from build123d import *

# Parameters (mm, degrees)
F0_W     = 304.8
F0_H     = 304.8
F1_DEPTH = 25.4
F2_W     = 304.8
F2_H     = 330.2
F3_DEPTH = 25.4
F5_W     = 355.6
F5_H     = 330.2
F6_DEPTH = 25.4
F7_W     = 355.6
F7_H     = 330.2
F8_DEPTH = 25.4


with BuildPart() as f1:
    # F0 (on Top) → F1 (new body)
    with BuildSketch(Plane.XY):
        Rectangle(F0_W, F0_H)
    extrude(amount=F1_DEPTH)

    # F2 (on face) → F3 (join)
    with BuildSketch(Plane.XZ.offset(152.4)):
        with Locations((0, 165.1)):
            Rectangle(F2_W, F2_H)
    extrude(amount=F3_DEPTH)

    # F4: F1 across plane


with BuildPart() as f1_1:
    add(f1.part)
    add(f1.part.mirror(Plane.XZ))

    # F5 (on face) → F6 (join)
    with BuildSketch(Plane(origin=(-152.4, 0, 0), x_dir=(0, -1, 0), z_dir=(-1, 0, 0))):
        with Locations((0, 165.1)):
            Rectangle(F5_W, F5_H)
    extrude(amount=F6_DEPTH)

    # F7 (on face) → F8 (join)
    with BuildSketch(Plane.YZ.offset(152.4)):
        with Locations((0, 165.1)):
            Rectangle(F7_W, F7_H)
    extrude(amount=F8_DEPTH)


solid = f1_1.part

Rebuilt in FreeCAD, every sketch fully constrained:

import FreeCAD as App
import Part
import Sketcher

V = App.Vector
Q = App.Units.Quantity

doc = App.newDocument("Part")
params = doc.addObject("Spreadsheet::Sheet", "Params")
for row, (alias, value) in enumerate([
    ("sketch1_width", "12 in"),
    ("pad1_length", "1 in"),
    ("sketch2_width", "12 in"),
    ("sketch2_height", "13 in"),
    ("pad2_length", "1 in"),
    ("sketch3_width", "14 in"),
    ("sketch3_height", "13 in"),
    ("pad3_length", "1 in"),
    ("sketch4_width", "14 in"),
    ("sketch4_height", "13 in"),
    ("pad4_length", "1 in"),
], start=1):
    params.set(f"A{row}", alias)
    params.set(f"B{row}", "=" + value)
    params.setAlias(f"B{row}", alias)

body = doc.addObject("PartDesign::Body", "Body")

# Sketch on XY plane
sketch1 = body.newObject("Sketcher::SketchObject", "Sketch")
sketch1.AttachmentSupport = (doc.getObject("XY_Plane"), [""])
sketch1.MapMode = "FlatFace"
sketch1.addGeometry([
    Part.LineSegment(V(-152.4, 152.4, 0), V(-152.4, -152.4, 0)),
    Part.LineSegment(V(-152.4, -152.4, 0), V(152.4, -152.4, 0)),
    Part.LineSegment(V(152.4, -152.4, 0), V(152.4, 152.4, 0)),
    Part.LineSegment(V(152.4, 152.4, 0), V(-152.4, 152.4, 0)),
], False)
sketch1.addConstraint([
    Sketcher.Constraint("Coincident", 0, 2, 1, 1),
    Sketcher.Constraint("Coincident", 1, 2, 2, 1),
    Sketcher.Constraint("Coincident", 2, 2, 3, 1),
    Sketcher.Constraint("Coincident", 3, 2, 0, 1),
    Sketcher.Constraint("Vertical", 0),
    Sketcher.Constraint("Horizontal", 1),
    Sketcher.Constraint("Vertical", 2),
    Sketcher.Constraint("Horizontal", 3),
    Sketcher.Constraint("Symmetric", 0, 2, 2, 2, -1, 1),
    Sketcher.Constraint("Equal", 3, 0),
    Sketcher.Constraint("DistanceX", 1, 1, 1, 2, Q("12 in")),
])
sketch1.setExpression("Constraints[10]", "Params.sketch1_width")
pad1 = body.newObject("PartDesign::Pad", "Pad")
pad1.Profile = sketch1
pad1.setExpression("Length", "Params.pad1_length")

# Sketch on XZ plane
sketch2 = body.newObject("Sketcher::SketchObject", "Sketch001")
sketch2.AttachmentSupport = (doc.getObject("XZ_Plane"), [""])
sketch2.MapMode = "FlatFace"
sketch2.AttachmentOffset = App.Placement(V(0, 0, 6 * 25.4), App.Rotation())
sketch2.addGeometry([
    Part.LineSegment(V(-152.4, 330.2, 0), V(-152.4, 0, 0)),
    Part.LineSegment(V(-152.4, 0, 0), V(152.4, 0, 0)),
    Part.LineSegment(V(152.4, 0, 0), V(152.4, 330.2, 0)),
    Part.LineSegment(V(152.4, 330.2, 0), V(-152.4, 330.2, 0)),
], False)
sketch2.addConstraint([
    Sketcher.Constraint("Coincident", 0, 2, 1, 1),
    Sketcher.Constraint("Coincident", 1, 2, 2, 1),
    Sketcher.Constraint("Coincident", 2, 2, 3, 1),
    Sketcher.Constraint("Coincident", 3, 2, 0, 1),
    Sketcher.Constraint("Vertical", 0),
    Sketcher.Constraint("Horizontal", 1),
    Sketcher.Constraint("Vertical", 2),
    Sketcher.Constraint("Horizontal", 3),
    Sketcher.Constraint("Symmetric", 0, 2, 1, 2, -1, 1),
    Sketcher.Constraint("DistanceX", 1, 1, 1, 2, Q("12 in")),
    Sketcher.Constraint("DistanceY", 0, 2, 0, 1, Q("13 in")),
])
sketch2.setExpression("Constraints[9]", "Params.sketch2_width")
sketch2.setExpression("Constraints[10]", "Params.sketch2_height")
pad2 = body.newObject("PartDesign::Pad", "Pad001")
pad2.Profile = sketch2
pad2.setExpression("Length", "Params.pad2_length")
body2 = doc.addObject("PartDesign::Body", "Body001")
doc.recompute()

body2.BaseFeature = body
doc.recompute()

mirroring = doc.addObject("Part::Mirroring", "Mirroring")
mirroring.Source = body
mirroring.Base = V(0, 0, 0)
mirroring.Normal = V(0, -1, 0)
body3 = doc.addObject("PartDesign::Body", "Body002")
body3.BaseFeature = mirroring
boolean = body2.newObject("PartDesign::Boolean", "Boolean")
boolean.Type = "Fuse"
boolean.addObjects([body3])
doc.recompute()

# Sketch on YZ plane
sketch3 = body2.newObject("Sketcher::SketchObject", "Sketch002")
sketch3.AttachmentSupport = (doc.getObject("YZ_Plane001"), [""])
sketch3.MapMode = "FlatFace"
sketch3.AttachmentOffset = App.Placement(V(0, 0, -6 * 25.4), App.Rotation())
sketch3.addGeometry([
    Part.LineSegment(V(177.8, 330.2, 0), V(177.8, 0, 0)),
    Part.LineSegment(V(177.8, 0, 0), V(-177.8, 0, 0)),
    Part.LineSegment(V(-177.8, 0, 0), V(-177.8, 330.2, 0)),
    Part.LineSegment(V(-177.8, 330.2, 0), V(177.8, 330.2, 0)),
], False)
sketch3.addConstraint([
    Sketcher.Constraint("Coincident", 0, 2, 1, 1),
    Sketcher.Constraint("Coincident", 1, 2, 2, 1),
    Sketcher.Constraint("Coincident", 2, 2, 3, 1),
    Sketcher.Constraint("Coincident", 3, 2, 0, 1),
    Sketcher.Constraint("Vertical", 0),
    Sketcher.Constraint("Horizontal", 1),
    Sketcher.Constraint("Vertical", 2),
    Sketcher.Constraint("Horizontal", 3),
    Sketcher.Constraint("Symmetric", 0, 2, 1, 2, -1, 1),
    Sketcher.Constraint("DistanceX", 1, 2, 1, 1, Q("14 in")),
    Sketcher.Constraint("DistanceY", 0, 2, 0, 1, Q("13 in")),
])
sketch3.setExpression("Constraints[9]", "Params.sketch3_width")
sketch3.setExpression("Constraints[10]", "Params.sketch3_height")
pad3 = body2.newObject("PartDesign::Pad", "Pad002")
pad3.Profile = sketch3
pad3.setExpression("Length", "Params.pad3_length")
pad3.Reversed = True

# Sketch on YZ plane
sketch4 = body2.newObject("Sketcher::SketchObject", "Sketch003")
sketch4.AttachmentSupport = (doc.getObject("YZ_Plane001"), [""])
sketch4.MapMode = "FlatFace"
sketch4.AttachmentOffset = App.Placement(V(0, 0, 6 * 25.4), App.Rotation())
sketch4.addGeometry([
    Part.LineSegment(V(-177.8, 330.2, 0), V(-177.8, 0, 0)),
    Part.LineSegment(V(-177.8, 0, 0), V(177.8, 0, 0)),
    Part.LineSegment(V(177.8, 0, 0), V(177.8, 330.2, 0)),
    Part.LineSegment(V(177.8, 330.2, 0), V(-177.8, 330.2, 0)),
], False)
sketch4.addConstraint([
    Sketcher.Constraint("Coincident", 0, 2, 1, 1),
    Sketcher.Constraint("Coincident", 1, 2, 2, 1),
    Sketcher.Constraint("Coincident", 2, 2, 3, 1),
    Sketcher.Constraint("Coincident", 3, 2, 0, 1),
    Sketcher.Constraint("Vertical", 0),
    Sketcher.Constraint("Horizontal", 1),
    Sketcher.Constraint("Vertical", 2),
    Sketcher.Constraint("Horizontal", 3),
    Sketcher.Constraint("Symmetric", 0, 2, 1, 2, -1, 1),
    Sketcher.Constraint("DistanceX", 1, 1, 1, 2, Q("14 in")),
    Sketcher.Constraint("DistanceY", 0, 2, 0, 1, Q("13 in")),
])
sketch4.setExpression("Constraints[9]", "Params.sketch4_width")
sketch4.setExpression("Constraints[10]", "Params.sketch4_height")
pad4 = body2.newObject("PartDesign::Pad", "Pad003")
pad4.Profile = sketch4
pad4.setExpression("Length", "Params.pad4_length")
mirroring.Visibility = False

doc.recompute()
